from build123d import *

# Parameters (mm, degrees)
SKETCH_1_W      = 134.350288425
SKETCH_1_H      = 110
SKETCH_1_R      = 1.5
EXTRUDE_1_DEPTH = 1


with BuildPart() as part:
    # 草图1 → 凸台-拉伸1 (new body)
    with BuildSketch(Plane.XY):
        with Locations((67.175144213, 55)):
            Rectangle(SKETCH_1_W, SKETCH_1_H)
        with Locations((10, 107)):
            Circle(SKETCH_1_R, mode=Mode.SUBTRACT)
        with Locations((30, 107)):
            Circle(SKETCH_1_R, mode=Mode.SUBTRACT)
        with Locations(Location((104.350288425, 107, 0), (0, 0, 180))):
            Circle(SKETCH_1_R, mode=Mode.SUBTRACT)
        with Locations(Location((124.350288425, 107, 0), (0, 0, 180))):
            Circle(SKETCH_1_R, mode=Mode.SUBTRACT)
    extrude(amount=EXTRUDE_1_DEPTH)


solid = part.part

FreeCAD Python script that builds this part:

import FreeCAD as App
import Part
import Sketcher
from FreeCAD import Vector
Q = App.Units.Quantity


def add_polygon(sketch, points):
    """Adds a closed chain of lines whose ends are joined by coincident constraints."""
    first, n = sketch.GeometryCount, len(points)
    for a, b in zip(points, points[1:] + points[:1]):
        sketch.addGeometry(Part.LineSegment(App.Vector(*a, 0), App.Vector(*b, 0)), False)
    for i in range(n):
        sketch.addConstraint(Sketcher.Constraint("Coincident", first + i, 2, first + (i + 1) % n, 1))

doc = App.newDocument("Part")
body = doc.addObject("PartDesign::Body", "Body")

# Sketch on XY plane
sketch1 = body.newObject("Sketcher::SketchObject", "Sketch")
sketch1.AttachmentSupport = (doc.getObject("XY_Plane"), [""])
sketch1.MapMode = "FlatFace"
add_polygon(sketch1, [(0, 110), (0, 0), (134.4, 0), (134.4, 110)])  # lines 0-3
sketch1.addGeometry(Part.Circle(Vector(10, 107, 0), Vector(0, 0, 1), 1.5), False)  # 4
sketch1.addGeometry(Part.Circle(Vector(30, 107, 0), Vector(0, 0, 1), 1.5), False)  # 5
sketch1.addGeometry(Part.Circle(Vector(104.4, 107, 0), Vector(0, 0, 1), 1.5), False)  # 6
sketch1.addGeometry(Part.Circle(Vector(124.4, 107, 0), Vector(0, 0, 1), 1.5), False)  # 7
sketch1.addConstraint([
    Sketcher.Constraint("Vertical", 0),
    Sketcher.Constraint("Horizontal", 1),
    Sketcher.Constraint("Vertical", 2),
    Sketcher.Constraint("Horizontal", 3),
    Sketcher.Constraint("Coincident", 0, 2, -1, 1),
    Sketcher.Constraint("Equal", 4, 5),
    Sketcher.Constraint("Equal", 5, 6),
    Sketcher.Constraint("Equal", 6, 7),
    Sketcher.Constraint("Horizontal", 4, 3, 5, 3),
    Sketcher.Constraint("Horizontal", 5, 3, 6, 3),
    Sketcher.Constraint("Horizontal", 6, 3, 7, 3),
    Sketcher.Constraint("Diameter", 4, Q("3 mm")),
    Sketcher.Constraint("DistanceY", 0, 2, 0, 1, Q("110 mm")),
    Sketcher.Constraint("DistanceX", -1, 1, 4, 3, Q("10 mm")),
    Sketcher.Constraint("DistanceY", -1, 1, 4, 3, Q("107 mm")),
    Sketcher.Constraint("DistanceX", -1, 1, 5, 3, Q("30 mm")),
    Sketcher.Constraint("DistanceX", 6, 3, 7, 3, Q("20 mm")),
    Sketcher.Constraint("DistanceX", 7, 3, 1, 2, Q("10 mm")),
    Sketcher.Constraint("DistanceX", 1, 1, 1, 2, Q("134.350288 mm")),
])
pad1 = body.newObject("PartDesign::Pad", "Pad")
pad1.Profile = sketch1
pad1.Length = 1

doc.recompute()
